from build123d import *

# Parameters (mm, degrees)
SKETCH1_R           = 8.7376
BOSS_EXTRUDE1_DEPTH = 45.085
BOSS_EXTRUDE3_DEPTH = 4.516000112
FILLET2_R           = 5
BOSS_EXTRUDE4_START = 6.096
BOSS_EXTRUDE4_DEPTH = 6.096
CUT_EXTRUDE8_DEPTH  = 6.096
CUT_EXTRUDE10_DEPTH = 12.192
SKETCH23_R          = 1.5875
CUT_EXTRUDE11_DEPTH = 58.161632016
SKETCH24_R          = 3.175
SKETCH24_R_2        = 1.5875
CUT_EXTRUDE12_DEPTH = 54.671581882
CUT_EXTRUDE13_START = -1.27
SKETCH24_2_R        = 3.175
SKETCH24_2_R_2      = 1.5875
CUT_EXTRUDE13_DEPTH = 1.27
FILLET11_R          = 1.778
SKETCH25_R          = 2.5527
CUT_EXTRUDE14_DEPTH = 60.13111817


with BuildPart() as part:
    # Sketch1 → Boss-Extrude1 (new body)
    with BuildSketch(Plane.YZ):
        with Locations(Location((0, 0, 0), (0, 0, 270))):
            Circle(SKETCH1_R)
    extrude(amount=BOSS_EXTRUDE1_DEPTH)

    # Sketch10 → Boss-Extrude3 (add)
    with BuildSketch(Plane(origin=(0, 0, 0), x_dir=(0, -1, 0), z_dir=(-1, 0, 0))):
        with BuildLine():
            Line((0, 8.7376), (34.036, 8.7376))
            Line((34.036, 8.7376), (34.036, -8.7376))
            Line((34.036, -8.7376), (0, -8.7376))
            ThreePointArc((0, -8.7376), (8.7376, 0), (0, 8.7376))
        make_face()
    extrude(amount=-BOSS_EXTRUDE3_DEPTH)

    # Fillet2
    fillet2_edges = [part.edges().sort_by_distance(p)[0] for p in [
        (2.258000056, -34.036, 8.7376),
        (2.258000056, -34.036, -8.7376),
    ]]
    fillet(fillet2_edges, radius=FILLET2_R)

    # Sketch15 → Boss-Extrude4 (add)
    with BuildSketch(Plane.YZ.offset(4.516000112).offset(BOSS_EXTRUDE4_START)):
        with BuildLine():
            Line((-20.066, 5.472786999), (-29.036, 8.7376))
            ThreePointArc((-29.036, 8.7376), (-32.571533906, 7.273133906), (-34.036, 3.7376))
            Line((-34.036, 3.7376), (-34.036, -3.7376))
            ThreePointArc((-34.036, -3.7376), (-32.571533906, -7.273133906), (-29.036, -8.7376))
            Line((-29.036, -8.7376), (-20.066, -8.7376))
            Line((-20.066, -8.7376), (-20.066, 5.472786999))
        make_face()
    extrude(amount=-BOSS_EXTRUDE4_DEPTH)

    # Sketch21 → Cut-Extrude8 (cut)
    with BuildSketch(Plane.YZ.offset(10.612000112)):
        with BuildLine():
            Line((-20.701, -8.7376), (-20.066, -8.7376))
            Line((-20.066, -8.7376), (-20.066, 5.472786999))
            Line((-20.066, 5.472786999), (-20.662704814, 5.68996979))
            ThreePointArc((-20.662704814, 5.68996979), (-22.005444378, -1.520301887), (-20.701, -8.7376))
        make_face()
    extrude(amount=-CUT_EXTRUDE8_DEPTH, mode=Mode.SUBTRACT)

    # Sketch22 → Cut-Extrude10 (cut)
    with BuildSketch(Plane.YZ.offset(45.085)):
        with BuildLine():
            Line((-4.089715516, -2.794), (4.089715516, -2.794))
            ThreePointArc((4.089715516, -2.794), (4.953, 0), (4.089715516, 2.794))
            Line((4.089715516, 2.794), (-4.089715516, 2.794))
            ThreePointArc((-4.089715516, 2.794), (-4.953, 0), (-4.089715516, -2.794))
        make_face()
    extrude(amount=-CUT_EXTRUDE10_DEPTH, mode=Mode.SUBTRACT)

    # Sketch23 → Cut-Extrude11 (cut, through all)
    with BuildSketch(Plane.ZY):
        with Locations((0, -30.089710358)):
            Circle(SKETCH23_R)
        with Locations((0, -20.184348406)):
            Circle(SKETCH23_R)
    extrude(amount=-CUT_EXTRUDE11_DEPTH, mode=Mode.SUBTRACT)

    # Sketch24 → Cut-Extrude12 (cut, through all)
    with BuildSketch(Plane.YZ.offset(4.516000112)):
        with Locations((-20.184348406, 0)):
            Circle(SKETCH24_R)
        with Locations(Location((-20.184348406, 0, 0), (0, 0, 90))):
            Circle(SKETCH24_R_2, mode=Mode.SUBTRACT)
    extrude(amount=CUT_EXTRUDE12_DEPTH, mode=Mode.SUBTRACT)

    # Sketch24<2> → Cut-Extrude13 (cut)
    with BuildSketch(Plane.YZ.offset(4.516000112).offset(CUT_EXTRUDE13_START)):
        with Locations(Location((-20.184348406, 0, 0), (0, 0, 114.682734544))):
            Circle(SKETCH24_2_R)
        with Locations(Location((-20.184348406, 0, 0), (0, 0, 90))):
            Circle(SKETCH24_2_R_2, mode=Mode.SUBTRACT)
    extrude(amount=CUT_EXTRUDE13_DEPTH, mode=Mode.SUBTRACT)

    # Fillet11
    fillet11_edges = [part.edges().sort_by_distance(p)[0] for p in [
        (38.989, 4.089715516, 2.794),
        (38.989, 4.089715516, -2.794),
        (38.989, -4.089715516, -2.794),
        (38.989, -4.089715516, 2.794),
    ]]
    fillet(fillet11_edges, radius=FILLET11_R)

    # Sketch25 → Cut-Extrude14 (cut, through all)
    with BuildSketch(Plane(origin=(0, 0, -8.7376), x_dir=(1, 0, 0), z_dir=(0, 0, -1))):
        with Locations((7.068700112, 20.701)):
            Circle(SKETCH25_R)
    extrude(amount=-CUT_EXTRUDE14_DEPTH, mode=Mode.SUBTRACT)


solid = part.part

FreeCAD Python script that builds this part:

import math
import FreeCAD as App
import Part
import Sketcher

V = App.Vector
Q = App.Units.Quantity


def edges_at(feature, points):
    """Names of the edges that pass closest to the given points."""
    edges = feature.Shape.Edges
    near = lambda p: min(range(len(edges)), key=lambda i: edges[i].distToShape(Part.Vertex(*p))[0])
    return sorted({f"Edge{near(p) + 1}" for p in points})

doc = App.newDocument("Part")
body = doc.addObject("PartDesign::Body", "Body")

# Sketch on YZ plane
sketch1 = body.newObject("Sketcher::SketchObject", "Sketch")
sketch1.AttachmentSupport = (doc.getObject("YZ_Plane"), [""])
sketch1.MapMode = "FlatFace"
sketch1.addGeometry(Part.Circle(V(0, 0, 0), V(0, 0, 1), 9), False)
sketch1.addConstraint([
    Sketcher.Constraint("Coincident", 0, 3, -1, 1),
    Sketcher.Constraint("Diameter", 0, Q("0.688 in")),
])
pad1 = body.newObject("PartDesign::Pad", "Pad")
pad1.Profile = sketch1
pad1.Length = Q("1.775 in")

# Sketch on YZ plane
sketch2 = body.newObject("Sketcher::SketchObject", "Sketch001")
sketch2.AttachmentSupport = (doc.getObject("YZ_Plane"), [""])
sketch2.MapMode = "FlatFace"
sketch2.addGeometry([
    Part.LineSegment(V(-34, 9, 0), V(0, 9, 0)),
    Part.ArcOfCircle(Part.Circle(V(0, 0, 0), V(0, 0, 1), 9), math.radians(90), math.radians(270)),
    Part.LineSegment(V(0, -9, 0), V(-34, -9, 0)),
    Part.LineSegment(V(-34, -9, 0), V(-34, 9, 0)),
], False)
sketch2.addConstraint([
    Sketcher.Constraint("Tangent", 0, 2, 1, 1),
    Sketcher.Constraint("Tangent", 1, 2, 2, 1),
    Sketcher.Constraint("Coincident", 2, 2, 3, 1),
    Sketcher.Constraint("Coincident", 3, 2, 0, 1),
    Sketcher.Constraint("Horizontal", 0),
    Sketcher.Constraint("Horizontal", 2),
    Sketcher.Constraint("Vertical", 3),
    Sketcher.Constraint("Coincident", 1, 3, -1, 1),
    Sketcher.Constraint("Radius", 1, Q("0.344 in")),
    Sketcher.Constraint("DistanceX", 0, 1, 0, 2, Q("1.34 in")),
])
pad2 = body.newObject("PartDesign::Pad", "Pad001")
pad2.Profile = sketch2
pad2.Length = 4.516
doc.recompute()

fillet = body.newObject("PartDesign::Fillet", "Fillet")
fillet.Base = (pad2, edges_at(pad2, [(2.258, -34.036, 8.738), (2.258, -34.036, -8.738)]))
fillet.Radius = 5

# Sketch on YZ plane
sketch3 = body.newObject("Sketcher::SketchObject", "Sketch002")
sketch3.AttachmentSupport = (doc.getObject("YZ_Plane"), [""])
sketch3.MapMode = "FlatFace"
sketch3.AttachmentOffset = App.Placement(V(0, 0, 10.612), App.Rotation())
sketch3.addGeometry([
    Part.LineSegment(V(-20, 5, 0), V(-29, 9, 0)),  # 0
    Part.ArcOfCircle(Part.Circle(V(-29, 4, 0), V(0, 0, 1), 5), math.radians(90), math.radians(180)),  # 1
    Part.LineSegment(V(-34, 4, 0), V(-34, -4, 0)),  # 2
    Part.ArcOfCircle(Part.Circle(V(-29, -4, 0), V(0, 0, 1), 5), math.radians(180), math.radians(270)),  # 3
    Part.LineSegment(V(-29, -9, 0), V(-20, -9, 0)),  # 4
    Part.LineSegment(V(-20, -9, 0), V(-20, 5, 0)),  # 5
], False)
sketch3.addConstraint([
    Sketcher.Constraint("Coincident", 0, 2, 1, 1),
    Sketcher.Constraint("Tangent", 1, 2, 2, 1),
    Sketcher.Constraint("Tangent", 2, 2, 3, 1),
    Sketcher.Constraint("Tangent", 3, 2, 4, 1),
    Sketcher.Constraint("Coincident", 4, 2, 5, 1),
    Sketcher.Constraint("Coincident", 5, 2, 0, 1),
    Sketcher.Constraint("Vertical", 2),
    Sketcher.Constraint("Horizontal", 4),
    Sketcher.Constraint("Vertical", 5),
    Sketcher.Constraint("Equal", 1, 3),
    Sketcher.Constraint("Symmetric", 0, 2, 3, 2, -1),
    Sketcher.Constraint("Angle", 0, Q("160 deg")),
    Sketcher.Constraint("DistanceX", 1, 2, -1, 1, Q("1.34 in")),
    Sketcher.Constraint("DistanceX", 4, 2, -1, 1, Q("0.79 in")),
    Sketcher.Constraint("Radius", 1, 5.0),
    Sketcher.Constraint("DistanceY", -1, 1, 0, 2, Q("0.344 in")),
])
pad3 = body.newObject("PartDesign::Pad", "Pad002")
pad3.Profile = sketch3
pad3.Length = Q("0.24 in")
pad3.Reversed = True

# Sketch on YZ plane
sketch4 = body.newObject("Sketcher::SketchObject", "Sketch003")
sketch4.AttachmentSupport = (doc.getObject("YZ_Plane"), [""])
sketch4.MapMode = "FlatFace"
sketch4.AttachmentOffset = App.Placement(V(0, 0, 10.612), App.Rotation())
sketch4.addGeometry([
    Part.LineSegment(V(-20.7, -8.7, 0), V(-20.1, -8.7, 0)),
    Part.LineSegment(V(-20.1, -8.7, 0), V(-20.1, 5.5, 0)),
    Part.LineSegment(V(-20.1, 5.5, 0), V(-20.7, 5.7, 0)),
    Part.ArcOfCircle(Part.Circle(V(-1.7, -1.6, 0), V(0, 0, 1), 20.3), math.radians(159), math.radians(201)),
], False)
sketch4.addConstraint([
    Sketcher.Constraint("Coincident", 0, 2, 1, 1),
    Sketcher.Constraint("Coincident", 1, 2, 2, 1),
    Sketcher.Constraint("Coincident", 2, 2, 3, 1),
    Sketcher.Constraint("Coincident", 3, 2, 0, 1),
    Sketcher.Constraint("Horizontal", 0),
    Sketcher.Constraint("Vertical", 1),
    Sketcher.Constraint("Radius", 3, Q("0.8 in")),
    Sketcher.Constraint("Angle", 2, Q("160 deg")),
    Sketcher.Constraint("DistanceX", 0, 1, 0, 2, Q("0.025 in")),
    Sketcher.Constraint("DistanceX", 0, 2, -1, 1, Q("0.79 in")),
    Sketcher.Constraint("Distance", 2, Q("0.025 in")),
    Sketcher.Constraint("DistanceY", 0, 2, -1, 1, Q("0.344 in")),
    Sketcher.Constraint("DistanceY", 1, 1, 1, 2, 14.210387),
])
pocket1 = body.newObject("PartDesign::Pocket", "Pocket")
pocket1.Profile = sketch4
pocket1.Length = Q("0.24 in")

# Sketch on YZ plane
sketch5 = body.newObject("Sketcher::SketchObject", "Sketch004")
sketch5.AttachmentSupport = (doc.getObject("YZ_Plane"), [""])
sketch5.MapMode = "FlatFace"
sketch5.AttachmentOffset = App.Placement(V(0, 0, 1.775 * 25.4), App.Rotation())
sketch5.addGeometry([
    Part.LineSegment(V(-4.1, -2.8, 0), V(4.1, -2.8, 0)),
    Part.ArcOfCircle(Part.Circle(V(0, 0, 0), V(0, 0, 1), 5), math.radians(-34), math.radians(34)),
    Part.LineSegment(V(4.1, 2.8, 0), V(-4.1, 2.8, 0)),
    Part.ArcOfCircle(Part.Circle(V(0, 0, 0), V(0, 0, 1), 5), math.radians(146), math.radians(214)),
], False)
sketch5.addConstraint([
    Sketcher.Constraint("Coincident", 0, 2, 1, 1),
    Sketcher.Constraint("Coincident", 1, 2, 2, 1),
    Sketcher.Constraint("Coincident", 2, 2, 3, 1),
    Sketcher.Constraint("Coincident", 3, 2, 0, 1),
    Sketcher.Constraint("Horizontal", 0),
    Sketcher.Constraint("Horizontal", 2),
    Sketcher.Constraint("Coincident", 1, 3, -1, 1),
    Sketcher.Constraint("Coincident", 3, 3, -1, 1),
    Sketcher.Constraint("Equal", 1, 3),
    Sketcher.Constraint("Vertical", 0, 2, 1, 2),
    Sketcher.Constraint("Radius", 1, Q("0.195 in")),
    Sketcher.Constraint("DistanceY", 0, 2, -1, 1, Q("0.11 in")),
])
pocket2 = body.newObject("PartDesign::Pocket", "Pocket001")
pocket2.Profile = sketch5
pocket2.Length = Q("0.48 in")

# Sketch on YZ plane
sketch6 = body.newObject("Sketcher::SketchObject", "Sketch005")
sketch6.AttachmentSupport = (doc.getObject("YZ_Plane"), [""])
sketch6.MapMode = "FlatFace"
sketch6.addGeometry([
    Part.Circle(V(-30.1, 0, 0), V(0, 0, 1), 1.6),
    Part.Circle(V(-20.2, 0, 0), V(0, 0, 1), 1.6),
], False)
sketch6.addConstraint([
    Sketcher.Constraint("Equal", 0, 1),
    Sketcher.Constraint("PointOnObject", 0, 3, -1),
    Sketcher.Constraint("PointOnObject", 1, 3, -1),
    Sketcher.Constraint("Diameter", 0, Q("0.125 in")),
    Sketcher.Constraint("DistanceX", 0, 3, -1, 1, 30.08971),
    Sketcher.Constraint("DistanceX", 1, 3, -1, 1, 20.184348),
])
pocket3 = body.newObject("PartDesign::Pocket", "Pocket002")
pocket3.Profile = sketch6
pocket3.Type = "ThroughAll"
pocket3.Reversed = True

# Sketch on YZ plane
sketch7 = body.newObject("Sketcher::SketchObject", "Sketch006")
sketch7.AttachmentSupport = (doc.getObject("YZ_Plane"), [""])
sketch7.MapMode = "FlatFace"
sketch7.AttachmentOffset = App.Placement(V(0, 0, 4.516), App.Rotation())
sketch7.addGeometry([
    Part.Circle(V(-20.2, 0, 0), V(0, 0, 1), 3.2),
    Part.Circle(V(-20.2, 0, 0), V(0, 0, 1), 1.6),
], False)
sketch7.addConstraint([
    Sketcher.Constraint("Coincident", 1, 3, 0, 3),
    Sketcher.Constraint("PointOnObject", 0, 3, -1),
    Sketcher.Constraint("Diameter", 0, Q("0.25 in")),
    Sketcher.Constraint("Diameter", 1, Q("0.125 in")),
    Sketcher.Constraint("DistanceX", 0, 3, -1, 1, 20.184348),
])
pocket4 = body.newObject("PartDesign::Pocket", "Pocket003")
pocket4.Profile = sketch7
pocket4.Type = "ThroughAll"
pocket4.Reversed = True

# Sketch on YZ plane
sketch8 = body.newObject("Sketcher::SketchObject", "Sketch007")
sketch8.AttachmentSupport = (doc.getObject("YZ_Plane"), [""])
sketch8.MapMode = "FlatFace"
sketch8.AttachmentOffset = App.Placement(V(0, 0, 3.246), App.Rotation())
sketch8.addGeometry([
    Part.Circle(V(-20.2, 0, 0), V(0, 0, 1), 3.2),
    Part.Circle(V(-20.2, 0, 0), V(0, 0, 1), 1.6),
], False)
sketch8.addConstraint([
    Sketcher.Constraint("Coincident", 1, 3, 0, 3),
    Sketcher.Constraint("PointOnObject", 0, 3, -1),
    Sketcher.Constraint("Diameter", 0, Q("0.25 in")),
    Sketcher.Constraint("Diameter", 1, Q("0.125 in")),
    Sketcher.Constraint("DistanceX", 0, 3, -1, 1, 20.184348),
])
pocket5 = body.newObject("PartDesign::Pocket", "Pocket004")
pocket5.Profile = sketch8
pocket5.Length = Q("0.05 in")
pocket5.Reversed = True
doc.recompute()

fillet2 = body.newObject("PartDesign::Fillet", "Fillet001")
fillet2.Base = (pocket5, edges_at(pocket5, [
    (38.989, 4.09, 2.794),
    (38.989, 4.09, -2.794),
    (38.989, -4.09, -2.794),
    (38.989, -4.09, 2.794),
]))
fillet2.Radius = Q("0.07 in")

# Sketch on XY plane
sketch9 = body.newObject("Sketcher::SketchObject", "Sketch008")
sketch9.AttachmentSupport = (doc.getObject("XY_Plane"), [""])
sketch9.MapMode = "FlatFace"
sketch9.AttachmentOffset = App.Placement(V(0, 0, -0.344 * 25.4), App.Rotation())
sketch9.addGeometry(Part.Circle(V(7.1, -20.7, 0), V(0, 0, 1), 2.6), False)
sketch9.addConstraint([
    Sketcher.Constraint("Diameter", 0, Q("0.201 in")),
    Sketcher.Constraint("DistanceY", 0, 3, -1, 1, Q("0.815 in")),
    Sketcher.Constraint("DistanceX", -1, 1, 0, 3, 7.0687),
])
pocket6 = body.newObject("PartDesign::Pocket", "Pocket005")
pocket6.Profile = sketch9
pocket6.Type = "ThroughAll"
pocket6.Reversed = True

doc.recompute()
